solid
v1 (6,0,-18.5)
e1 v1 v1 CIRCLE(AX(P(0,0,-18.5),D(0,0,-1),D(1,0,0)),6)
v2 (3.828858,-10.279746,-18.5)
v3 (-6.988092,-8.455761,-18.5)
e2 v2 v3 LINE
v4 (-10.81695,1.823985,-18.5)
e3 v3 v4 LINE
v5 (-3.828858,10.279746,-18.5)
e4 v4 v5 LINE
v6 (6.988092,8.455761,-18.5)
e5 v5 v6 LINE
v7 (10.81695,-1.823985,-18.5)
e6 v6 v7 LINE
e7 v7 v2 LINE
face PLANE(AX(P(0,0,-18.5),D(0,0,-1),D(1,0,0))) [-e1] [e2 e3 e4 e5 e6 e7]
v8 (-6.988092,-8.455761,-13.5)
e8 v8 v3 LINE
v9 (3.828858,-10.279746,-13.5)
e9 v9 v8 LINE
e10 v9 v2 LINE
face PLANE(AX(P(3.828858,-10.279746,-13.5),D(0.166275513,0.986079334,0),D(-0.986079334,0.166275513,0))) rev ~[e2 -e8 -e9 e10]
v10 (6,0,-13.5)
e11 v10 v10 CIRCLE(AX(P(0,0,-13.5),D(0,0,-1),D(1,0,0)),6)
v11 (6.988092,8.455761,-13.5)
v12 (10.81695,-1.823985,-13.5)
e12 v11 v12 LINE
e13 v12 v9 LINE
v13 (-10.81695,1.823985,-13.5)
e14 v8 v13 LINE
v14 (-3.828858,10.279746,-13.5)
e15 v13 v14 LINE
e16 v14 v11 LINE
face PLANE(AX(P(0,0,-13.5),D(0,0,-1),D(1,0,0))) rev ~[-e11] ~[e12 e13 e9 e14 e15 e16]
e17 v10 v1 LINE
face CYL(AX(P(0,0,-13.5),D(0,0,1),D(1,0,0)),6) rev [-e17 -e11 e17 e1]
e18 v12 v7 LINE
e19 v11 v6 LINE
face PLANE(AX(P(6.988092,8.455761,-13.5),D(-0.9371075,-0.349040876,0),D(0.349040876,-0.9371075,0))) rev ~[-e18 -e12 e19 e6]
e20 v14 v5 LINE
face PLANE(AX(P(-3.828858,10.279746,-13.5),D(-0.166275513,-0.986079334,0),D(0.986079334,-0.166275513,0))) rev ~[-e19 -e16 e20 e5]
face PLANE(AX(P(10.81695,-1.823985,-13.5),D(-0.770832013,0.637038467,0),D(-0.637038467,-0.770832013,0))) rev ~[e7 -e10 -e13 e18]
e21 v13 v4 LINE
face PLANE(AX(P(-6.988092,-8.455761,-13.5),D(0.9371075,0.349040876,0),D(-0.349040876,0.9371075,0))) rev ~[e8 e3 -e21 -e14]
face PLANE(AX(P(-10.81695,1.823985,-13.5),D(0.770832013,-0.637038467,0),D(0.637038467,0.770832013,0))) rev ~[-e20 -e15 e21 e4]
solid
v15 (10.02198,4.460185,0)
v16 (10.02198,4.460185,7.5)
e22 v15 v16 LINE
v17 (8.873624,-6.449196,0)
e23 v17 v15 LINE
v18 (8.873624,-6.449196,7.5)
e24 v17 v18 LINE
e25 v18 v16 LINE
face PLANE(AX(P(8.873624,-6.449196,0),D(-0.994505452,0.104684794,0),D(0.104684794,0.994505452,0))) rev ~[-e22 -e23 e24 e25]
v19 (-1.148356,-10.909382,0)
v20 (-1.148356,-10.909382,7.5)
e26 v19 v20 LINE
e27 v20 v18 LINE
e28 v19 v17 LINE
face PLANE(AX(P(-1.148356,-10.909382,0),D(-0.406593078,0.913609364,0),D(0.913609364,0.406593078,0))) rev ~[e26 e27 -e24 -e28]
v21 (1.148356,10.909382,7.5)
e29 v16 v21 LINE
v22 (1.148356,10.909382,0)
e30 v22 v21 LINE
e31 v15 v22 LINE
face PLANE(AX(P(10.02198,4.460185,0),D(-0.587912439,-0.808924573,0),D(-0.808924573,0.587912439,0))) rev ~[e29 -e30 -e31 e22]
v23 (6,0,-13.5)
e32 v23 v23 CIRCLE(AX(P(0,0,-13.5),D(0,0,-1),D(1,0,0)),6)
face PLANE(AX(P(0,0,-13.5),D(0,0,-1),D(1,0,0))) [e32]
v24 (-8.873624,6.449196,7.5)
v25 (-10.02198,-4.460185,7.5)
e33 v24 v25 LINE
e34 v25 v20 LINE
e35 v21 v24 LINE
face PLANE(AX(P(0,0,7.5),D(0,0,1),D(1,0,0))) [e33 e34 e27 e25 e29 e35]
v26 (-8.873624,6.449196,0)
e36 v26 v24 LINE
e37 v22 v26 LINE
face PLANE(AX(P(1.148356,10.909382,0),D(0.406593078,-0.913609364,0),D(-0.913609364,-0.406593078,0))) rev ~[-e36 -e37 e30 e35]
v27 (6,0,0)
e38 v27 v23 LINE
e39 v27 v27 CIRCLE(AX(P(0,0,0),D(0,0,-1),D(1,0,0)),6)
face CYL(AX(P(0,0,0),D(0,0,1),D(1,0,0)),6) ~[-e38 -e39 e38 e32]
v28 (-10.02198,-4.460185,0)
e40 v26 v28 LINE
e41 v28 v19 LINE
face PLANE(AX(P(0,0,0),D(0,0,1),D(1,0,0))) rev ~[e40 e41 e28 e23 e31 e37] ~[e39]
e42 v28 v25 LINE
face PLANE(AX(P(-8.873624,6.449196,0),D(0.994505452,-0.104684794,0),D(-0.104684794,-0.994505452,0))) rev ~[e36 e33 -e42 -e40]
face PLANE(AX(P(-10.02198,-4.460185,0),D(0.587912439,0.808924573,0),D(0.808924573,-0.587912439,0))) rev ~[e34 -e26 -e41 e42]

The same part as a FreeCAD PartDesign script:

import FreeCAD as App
import Part
import Sketcher
Q = App.Units.Quantity

doc = App.newDocument("Part")
body = doc.addObject("PartDesign::Body", "Body")

# Sketch on XY plane
sketch1 = doc.addObject("Sketcher::SketchObject", "Sketch")
body.addObject(sketch1)
sketch1.AttachmentSupport = (doc.XY_Plane, [""])
sketch1.MapMode = "FlatFace"
sketch1.addGeometry(Part.LineSegment(App.Vector(-9, 6, 0), App.Vector(-10, -4, 0)), False)
sketch1.addGeometry(Part.LineSegment(App.Vector(-10, -4, 0), App.Vector(-1, -11, 0)), False)
sketch1.addGeometry(Part.LineSegment(App.Vector(-1, -11, 0), App.Vector(9, -6, 0)), False)
sketch1.addGeometry(Part.LineSegment(App.Vector(9, -6, 0), App.Vector(10, 4, 0)), False)
sketch1.addGeometry(Part.LineSegment(App.Vector(10, 4, 0), App.Vector(1, 11, 0)), False)
sketch1.addGeometry(Part.LineSegment(App.Vector(1, 11, 0), App.Vector(-9, 6, 0)), False)
sketch1.addConstraint(Sketcher.Constraint("Coincident", 0, 2, 1, 1))
sketch1.addConstraint(Sketcher.Constraint("Coincident", 1, 2, 2, 1))
sketch1.addConstraint(Sketcher.Constraint("Coincident", 2, 2, 3, 1))
sketch1.addConstraint(Sketcher.Constraint("Coincident", 3, 2, 4, 1))
sketch1.addConstraint(Sketcher.Constraint("Coincident", 4, 2, 5, 1))
sketch1.addConstraint(Sketcher.Constraint("Coincident", 5, 2, 0, 1))
sketch1.addConstraint(Sketcher.Constraint("Symmetric", 0, 2, 3, 2, -1, 1))
sketch1.addConstraint(Sketcher.Constraint("Symmetric", 1, 2, 4, 2, -1, 1))
sketch1.addConstraint(Sketcher.Constraint("Symmetric", 2, 2, 5, 2, -1, 1))
sketch1.addConstraint(Sketcher.Constraint("Equal", 0, 1))
sketch1.addConstraint(Sketcher.Constraint("Equal", 1, 2))
sketch1.addConstraint(Sketcher.Constraint("DistanceX", 0, 2, -1, 1, Q("10.02198 mm")))
sketch1.addConstraint(Sketcher.Constraint("DistanceX", 1, 2, 2, 2, Q("10.02198 mm")))
sketch1.addConstraint(Sketcher.Constraint("DistanceY", 2, 2, 0, 2, Q("1.989011 mm")))
sketch1.addConstraint(Sketcher.Constraint("DistanceY", 2, 2, 3, 2, Q("10.909381 mm")))
pad1 = doc.addObject("PartDesign::Pad", "Pad")
body.addObject(pad1)
pad1.Profile = sketch1
pad1.Length = 7.5

# Sketch on XY plane
sketch2 = doc.addObject("Sketcher::SketchObject", "Sketch001")
body.addObject(sketch2)
sketch2.AttachmentSupport = (doc.XY_Plane, [""])
sketch2.MapMode = "FlatFace"
sketch2.addGeometry(Part.Circle(App.Vector(0, 0, 0), App.Vector(0, 0, 1), 6), False)
sketch2.addConstraint(Sketcher.Constraint("Coincident", 0, 3, -1, 1))
sketch2.addConstraint(Sketcher.Constraint("Diameter", 0, Q("12 mm")))
pad2 = doc.addObject("PartDesign::Pad", "Pad001")
body.addObject(pad2)
pad2.Profile = sketch2
pad2.Length = 13.5
pad2.Reversed = True
body2 = doc.addObject("PartDesign::Body", "Body001")

# Sketch on XY plane
sketch3 = doc.addObject("Sketcher::SketchObject", "Sketch002")
body2.addObject(sketch3)
sketch3.AttachmentSupport = (doc.getObject("XY_Plane001"), [""])
sketch3.MapMode = "FlatFace"
sketch3.AttachmentOffset = App.Placement(App.Vector(0, 0, -13.5), App.Rotation())
sketch3.addGeometry(Part.LineSegment(App.Vector(7, 8, 0), App.Vector(11, -2, 0)), False)
sketch3.addGeometry(Part.LineSegment(App.Vector(11, -2, 0), App.Vector(4, -10, 0)), False)
sketch3.addGeometry(Part.LineSegment(App.Vector(4, -10, 0), App.Vector(-7, -8, 0)), False)
sketch3.addGeometry(Part.LineSegment(App.Vector(-7, -8, 0), App.Vector(-11, 2, 0)), False)
sketch3.addGeometry(Part.LineSegment(App.Vector(-11, 2, 0), App.Vector(-4, 10, 0)), False)
sketch3.addGeometry(Part.LineSegment(App.Vector(-4, 10, 0), App.Vector(7, 8, 0)), False)
sketch3.addGeometry(Part.Circle(App.Vector(0, 0, 0), App.Vector(0, 0, 1), 6), False)
sketch3.addConstraint(Sketcher.Constraint("Coincident", 0, 2, 1, 1))
sketch3.addConstraint(Sketcher.Constraint("Coincident", 1, 2, 2, 1))
sketch3.addConstraint(Sketcher.Constraint("Coincident", 2, 2, 3, 1))
sketch3.addConstraint(Sketcher.Constraint("Coincident", 3, 2, 4, 1))
sketch3.addConstraint(Sketcher.Constraint("Coincident", 4, 2, 5, 1))
sketch3.addConstraint(Sketcher.Constraint("Coincident", 5, 2, 0, 1))
sketch3.addConstraint(Sketcher.Constraint("Coincident", 6, 3, -1, 1))
sketch3.addConstraint(Sketcher.Constraint("Symmetric", 0, 2, 3, 2, -1, 1))
sketch3.addConstraint(Sketcher.Constraint("Symmetric", 1, 2, 4, 2, -1, 1))
sketch3.addConstraint(Sketcher.Constraint("Symmetric", 2, 2, 5, 2, -1, 1))
sketch3.addConstraint(Sketcher.Constraint("Equal", 0, 1))
sketch3.addConstraint(Sketcher.Constraint("Equal", 1, 2))
sketch3.addConstraint(Sketcher.Constraint("Diameter", 6, Q("12 mm")))
sketch3.addConstraint(Sketcher.Constraint("DistanceX", 3, 2, 0, 2, Q("21.6339 mm")))
sketch3.addConstraint(Sketcher.Constraint("DistanceY", 2, 2, -1, 1, Q("8.455761 mm")))
sketch3.addConstraint(Sketcher.Constraint("DistanceY", 1, 2, 0, 2, Q("8.455761 mm")))
sketch3.addConstraint(Sketcher.Constraint("DistanceX", 2, 2, 1, 2, Q("10.81695 mm")))
pad3 = doc.addObject("PartDesign::Pad", "Pad002")
body2.addObject(pad3)
pad3.Profile = sketch3
pad3.Length = 5
pad3.Reversed = True

doc.recompute()
